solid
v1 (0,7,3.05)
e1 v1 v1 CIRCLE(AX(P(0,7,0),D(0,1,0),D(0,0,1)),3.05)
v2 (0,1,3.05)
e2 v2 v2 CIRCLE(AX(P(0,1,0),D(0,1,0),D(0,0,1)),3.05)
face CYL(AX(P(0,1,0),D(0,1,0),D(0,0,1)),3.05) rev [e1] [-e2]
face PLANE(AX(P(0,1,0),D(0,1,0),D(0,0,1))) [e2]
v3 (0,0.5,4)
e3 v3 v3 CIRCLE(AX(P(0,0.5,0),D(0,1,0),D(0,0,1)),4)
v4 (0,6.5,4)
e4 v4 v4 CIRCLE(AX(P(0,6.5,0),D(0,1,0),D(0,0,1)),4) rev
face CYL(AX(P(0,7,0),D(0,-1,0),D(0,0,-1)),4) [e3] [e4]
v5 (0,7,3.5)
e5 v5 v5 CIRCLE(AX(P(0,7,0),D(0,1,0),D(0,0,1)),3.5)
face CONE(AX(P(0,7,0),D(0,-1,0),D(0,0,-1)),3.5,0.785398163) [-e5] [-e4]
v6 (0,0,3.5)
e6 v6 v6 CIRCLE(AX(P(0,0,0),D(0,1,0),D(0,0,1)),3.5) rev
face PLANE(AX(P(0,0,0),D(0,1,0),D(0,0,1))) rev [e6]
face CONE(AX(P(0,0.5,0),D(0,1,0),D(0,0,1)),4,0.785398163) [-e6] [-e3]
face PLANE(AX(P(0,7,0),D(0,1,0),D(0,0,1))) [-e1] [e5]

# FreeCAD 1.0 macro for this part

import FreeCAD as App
import Part
import Sketcher


def edges_at(feature, points):
    """Names of the edges that pass closest to the given points."""
    edges = feature.Shape.Edges
    near = lambda p: min(range(len(edges)), key=lambda i: edges[i].distToShape(Part.Vertex(*p))[0])
    return sorted({f"Edge{near(p) + 1}" for p in points})

doc = App.newDocument("Part")
params = doc.addObject("Spreadsheet::Sheet", "Params")
for row, (alias, value) in enumerate([
    ("sketch1_diameter", "8 mm"),
    ("pad1_length", "7 mm"),
    ("sketch2_diameter", "6.1 mm"),
    ("pocket1_length", "6 mm"),
    ("chamfer_size", "0.5 mm"),
], start=1):
    params.set(f"A{row}", alias)
    params.set(f"B{row}", "=" + value)
    params.setAlias(f"B{row}", alias)

body = doc.addObject("PartDesign::Body", "Body")

# Sketch on XZ plane
sketch1 = body.newObject("Sketcher::SketchObject", "Sketch")
sketch1.AttachmentSupport = (doc.getObject("XZ_Plane"), [""])
sketch1.MapMode = "FlatFace"
sketch1.addGeometry(Part.Circle(App.Vector(0, 0, 0), App.Vector(0, 0, 1), 4), False)
sketch1.addConstraint(Sketcher.Constraint("Coincident", 0, 3, -1, 1))
sketch1.addConstraint(Sketcher.Constraint("Diameter", 0, 8.0))
sketch1.setExpression("Constraints[1]", "Params.sketch1_diameter")
pad1 = body.newObject("PartDesign::Pad", "Pad")
pad1.Profile = sketch1
pad1.setExpression("Length", "Params.pad1_length")
pad1.Reversed = True

# Sketch on XZ plane
sketch2 = body.newObject("Sketcher::SketchObject", "Sketch001")
sketch2.AttachmentSupport = (doc.getObject("XZ_Plane"), [""])
sketch2.MapMode = "FlatFace"
sketch2.AttachmentOffset = App.Placement(App.Vector(0, 0, -7), App.Rotation())
sketch2.addGeometry(Part.Circle(App.Vector(0, 0, 0), App.Vector(0, 0, 1), 3), False)
sketch2.addConstraint(Sketcher.Constraint("Coincident", 0, 3, -1, 1))
sketch2.addConstraint(Sketcher.Constraint("Diameter", 0, 6.1))
sketch2.setExpression("Constraints[1]", "Params.sketch2_diameter")
pocket1 = body.newObject("PartDesign::Pocket", "Pocket")
pocket1.Profile = sketch2
pocket1.setExpression("Length", "Params.pocket1_length")
pocket1.Reversed = True
doc.recompute()

chamfer = body.newObject("PartDesign::Chamfer", "Chamfer")
chamfer.Base = (pocket1, edges_at(pocket1, [(0, 0, -4), (0, 7, -4)]))
chamfer.setExpression("Size", "Params.chamfer_size")

doc.recompute()
